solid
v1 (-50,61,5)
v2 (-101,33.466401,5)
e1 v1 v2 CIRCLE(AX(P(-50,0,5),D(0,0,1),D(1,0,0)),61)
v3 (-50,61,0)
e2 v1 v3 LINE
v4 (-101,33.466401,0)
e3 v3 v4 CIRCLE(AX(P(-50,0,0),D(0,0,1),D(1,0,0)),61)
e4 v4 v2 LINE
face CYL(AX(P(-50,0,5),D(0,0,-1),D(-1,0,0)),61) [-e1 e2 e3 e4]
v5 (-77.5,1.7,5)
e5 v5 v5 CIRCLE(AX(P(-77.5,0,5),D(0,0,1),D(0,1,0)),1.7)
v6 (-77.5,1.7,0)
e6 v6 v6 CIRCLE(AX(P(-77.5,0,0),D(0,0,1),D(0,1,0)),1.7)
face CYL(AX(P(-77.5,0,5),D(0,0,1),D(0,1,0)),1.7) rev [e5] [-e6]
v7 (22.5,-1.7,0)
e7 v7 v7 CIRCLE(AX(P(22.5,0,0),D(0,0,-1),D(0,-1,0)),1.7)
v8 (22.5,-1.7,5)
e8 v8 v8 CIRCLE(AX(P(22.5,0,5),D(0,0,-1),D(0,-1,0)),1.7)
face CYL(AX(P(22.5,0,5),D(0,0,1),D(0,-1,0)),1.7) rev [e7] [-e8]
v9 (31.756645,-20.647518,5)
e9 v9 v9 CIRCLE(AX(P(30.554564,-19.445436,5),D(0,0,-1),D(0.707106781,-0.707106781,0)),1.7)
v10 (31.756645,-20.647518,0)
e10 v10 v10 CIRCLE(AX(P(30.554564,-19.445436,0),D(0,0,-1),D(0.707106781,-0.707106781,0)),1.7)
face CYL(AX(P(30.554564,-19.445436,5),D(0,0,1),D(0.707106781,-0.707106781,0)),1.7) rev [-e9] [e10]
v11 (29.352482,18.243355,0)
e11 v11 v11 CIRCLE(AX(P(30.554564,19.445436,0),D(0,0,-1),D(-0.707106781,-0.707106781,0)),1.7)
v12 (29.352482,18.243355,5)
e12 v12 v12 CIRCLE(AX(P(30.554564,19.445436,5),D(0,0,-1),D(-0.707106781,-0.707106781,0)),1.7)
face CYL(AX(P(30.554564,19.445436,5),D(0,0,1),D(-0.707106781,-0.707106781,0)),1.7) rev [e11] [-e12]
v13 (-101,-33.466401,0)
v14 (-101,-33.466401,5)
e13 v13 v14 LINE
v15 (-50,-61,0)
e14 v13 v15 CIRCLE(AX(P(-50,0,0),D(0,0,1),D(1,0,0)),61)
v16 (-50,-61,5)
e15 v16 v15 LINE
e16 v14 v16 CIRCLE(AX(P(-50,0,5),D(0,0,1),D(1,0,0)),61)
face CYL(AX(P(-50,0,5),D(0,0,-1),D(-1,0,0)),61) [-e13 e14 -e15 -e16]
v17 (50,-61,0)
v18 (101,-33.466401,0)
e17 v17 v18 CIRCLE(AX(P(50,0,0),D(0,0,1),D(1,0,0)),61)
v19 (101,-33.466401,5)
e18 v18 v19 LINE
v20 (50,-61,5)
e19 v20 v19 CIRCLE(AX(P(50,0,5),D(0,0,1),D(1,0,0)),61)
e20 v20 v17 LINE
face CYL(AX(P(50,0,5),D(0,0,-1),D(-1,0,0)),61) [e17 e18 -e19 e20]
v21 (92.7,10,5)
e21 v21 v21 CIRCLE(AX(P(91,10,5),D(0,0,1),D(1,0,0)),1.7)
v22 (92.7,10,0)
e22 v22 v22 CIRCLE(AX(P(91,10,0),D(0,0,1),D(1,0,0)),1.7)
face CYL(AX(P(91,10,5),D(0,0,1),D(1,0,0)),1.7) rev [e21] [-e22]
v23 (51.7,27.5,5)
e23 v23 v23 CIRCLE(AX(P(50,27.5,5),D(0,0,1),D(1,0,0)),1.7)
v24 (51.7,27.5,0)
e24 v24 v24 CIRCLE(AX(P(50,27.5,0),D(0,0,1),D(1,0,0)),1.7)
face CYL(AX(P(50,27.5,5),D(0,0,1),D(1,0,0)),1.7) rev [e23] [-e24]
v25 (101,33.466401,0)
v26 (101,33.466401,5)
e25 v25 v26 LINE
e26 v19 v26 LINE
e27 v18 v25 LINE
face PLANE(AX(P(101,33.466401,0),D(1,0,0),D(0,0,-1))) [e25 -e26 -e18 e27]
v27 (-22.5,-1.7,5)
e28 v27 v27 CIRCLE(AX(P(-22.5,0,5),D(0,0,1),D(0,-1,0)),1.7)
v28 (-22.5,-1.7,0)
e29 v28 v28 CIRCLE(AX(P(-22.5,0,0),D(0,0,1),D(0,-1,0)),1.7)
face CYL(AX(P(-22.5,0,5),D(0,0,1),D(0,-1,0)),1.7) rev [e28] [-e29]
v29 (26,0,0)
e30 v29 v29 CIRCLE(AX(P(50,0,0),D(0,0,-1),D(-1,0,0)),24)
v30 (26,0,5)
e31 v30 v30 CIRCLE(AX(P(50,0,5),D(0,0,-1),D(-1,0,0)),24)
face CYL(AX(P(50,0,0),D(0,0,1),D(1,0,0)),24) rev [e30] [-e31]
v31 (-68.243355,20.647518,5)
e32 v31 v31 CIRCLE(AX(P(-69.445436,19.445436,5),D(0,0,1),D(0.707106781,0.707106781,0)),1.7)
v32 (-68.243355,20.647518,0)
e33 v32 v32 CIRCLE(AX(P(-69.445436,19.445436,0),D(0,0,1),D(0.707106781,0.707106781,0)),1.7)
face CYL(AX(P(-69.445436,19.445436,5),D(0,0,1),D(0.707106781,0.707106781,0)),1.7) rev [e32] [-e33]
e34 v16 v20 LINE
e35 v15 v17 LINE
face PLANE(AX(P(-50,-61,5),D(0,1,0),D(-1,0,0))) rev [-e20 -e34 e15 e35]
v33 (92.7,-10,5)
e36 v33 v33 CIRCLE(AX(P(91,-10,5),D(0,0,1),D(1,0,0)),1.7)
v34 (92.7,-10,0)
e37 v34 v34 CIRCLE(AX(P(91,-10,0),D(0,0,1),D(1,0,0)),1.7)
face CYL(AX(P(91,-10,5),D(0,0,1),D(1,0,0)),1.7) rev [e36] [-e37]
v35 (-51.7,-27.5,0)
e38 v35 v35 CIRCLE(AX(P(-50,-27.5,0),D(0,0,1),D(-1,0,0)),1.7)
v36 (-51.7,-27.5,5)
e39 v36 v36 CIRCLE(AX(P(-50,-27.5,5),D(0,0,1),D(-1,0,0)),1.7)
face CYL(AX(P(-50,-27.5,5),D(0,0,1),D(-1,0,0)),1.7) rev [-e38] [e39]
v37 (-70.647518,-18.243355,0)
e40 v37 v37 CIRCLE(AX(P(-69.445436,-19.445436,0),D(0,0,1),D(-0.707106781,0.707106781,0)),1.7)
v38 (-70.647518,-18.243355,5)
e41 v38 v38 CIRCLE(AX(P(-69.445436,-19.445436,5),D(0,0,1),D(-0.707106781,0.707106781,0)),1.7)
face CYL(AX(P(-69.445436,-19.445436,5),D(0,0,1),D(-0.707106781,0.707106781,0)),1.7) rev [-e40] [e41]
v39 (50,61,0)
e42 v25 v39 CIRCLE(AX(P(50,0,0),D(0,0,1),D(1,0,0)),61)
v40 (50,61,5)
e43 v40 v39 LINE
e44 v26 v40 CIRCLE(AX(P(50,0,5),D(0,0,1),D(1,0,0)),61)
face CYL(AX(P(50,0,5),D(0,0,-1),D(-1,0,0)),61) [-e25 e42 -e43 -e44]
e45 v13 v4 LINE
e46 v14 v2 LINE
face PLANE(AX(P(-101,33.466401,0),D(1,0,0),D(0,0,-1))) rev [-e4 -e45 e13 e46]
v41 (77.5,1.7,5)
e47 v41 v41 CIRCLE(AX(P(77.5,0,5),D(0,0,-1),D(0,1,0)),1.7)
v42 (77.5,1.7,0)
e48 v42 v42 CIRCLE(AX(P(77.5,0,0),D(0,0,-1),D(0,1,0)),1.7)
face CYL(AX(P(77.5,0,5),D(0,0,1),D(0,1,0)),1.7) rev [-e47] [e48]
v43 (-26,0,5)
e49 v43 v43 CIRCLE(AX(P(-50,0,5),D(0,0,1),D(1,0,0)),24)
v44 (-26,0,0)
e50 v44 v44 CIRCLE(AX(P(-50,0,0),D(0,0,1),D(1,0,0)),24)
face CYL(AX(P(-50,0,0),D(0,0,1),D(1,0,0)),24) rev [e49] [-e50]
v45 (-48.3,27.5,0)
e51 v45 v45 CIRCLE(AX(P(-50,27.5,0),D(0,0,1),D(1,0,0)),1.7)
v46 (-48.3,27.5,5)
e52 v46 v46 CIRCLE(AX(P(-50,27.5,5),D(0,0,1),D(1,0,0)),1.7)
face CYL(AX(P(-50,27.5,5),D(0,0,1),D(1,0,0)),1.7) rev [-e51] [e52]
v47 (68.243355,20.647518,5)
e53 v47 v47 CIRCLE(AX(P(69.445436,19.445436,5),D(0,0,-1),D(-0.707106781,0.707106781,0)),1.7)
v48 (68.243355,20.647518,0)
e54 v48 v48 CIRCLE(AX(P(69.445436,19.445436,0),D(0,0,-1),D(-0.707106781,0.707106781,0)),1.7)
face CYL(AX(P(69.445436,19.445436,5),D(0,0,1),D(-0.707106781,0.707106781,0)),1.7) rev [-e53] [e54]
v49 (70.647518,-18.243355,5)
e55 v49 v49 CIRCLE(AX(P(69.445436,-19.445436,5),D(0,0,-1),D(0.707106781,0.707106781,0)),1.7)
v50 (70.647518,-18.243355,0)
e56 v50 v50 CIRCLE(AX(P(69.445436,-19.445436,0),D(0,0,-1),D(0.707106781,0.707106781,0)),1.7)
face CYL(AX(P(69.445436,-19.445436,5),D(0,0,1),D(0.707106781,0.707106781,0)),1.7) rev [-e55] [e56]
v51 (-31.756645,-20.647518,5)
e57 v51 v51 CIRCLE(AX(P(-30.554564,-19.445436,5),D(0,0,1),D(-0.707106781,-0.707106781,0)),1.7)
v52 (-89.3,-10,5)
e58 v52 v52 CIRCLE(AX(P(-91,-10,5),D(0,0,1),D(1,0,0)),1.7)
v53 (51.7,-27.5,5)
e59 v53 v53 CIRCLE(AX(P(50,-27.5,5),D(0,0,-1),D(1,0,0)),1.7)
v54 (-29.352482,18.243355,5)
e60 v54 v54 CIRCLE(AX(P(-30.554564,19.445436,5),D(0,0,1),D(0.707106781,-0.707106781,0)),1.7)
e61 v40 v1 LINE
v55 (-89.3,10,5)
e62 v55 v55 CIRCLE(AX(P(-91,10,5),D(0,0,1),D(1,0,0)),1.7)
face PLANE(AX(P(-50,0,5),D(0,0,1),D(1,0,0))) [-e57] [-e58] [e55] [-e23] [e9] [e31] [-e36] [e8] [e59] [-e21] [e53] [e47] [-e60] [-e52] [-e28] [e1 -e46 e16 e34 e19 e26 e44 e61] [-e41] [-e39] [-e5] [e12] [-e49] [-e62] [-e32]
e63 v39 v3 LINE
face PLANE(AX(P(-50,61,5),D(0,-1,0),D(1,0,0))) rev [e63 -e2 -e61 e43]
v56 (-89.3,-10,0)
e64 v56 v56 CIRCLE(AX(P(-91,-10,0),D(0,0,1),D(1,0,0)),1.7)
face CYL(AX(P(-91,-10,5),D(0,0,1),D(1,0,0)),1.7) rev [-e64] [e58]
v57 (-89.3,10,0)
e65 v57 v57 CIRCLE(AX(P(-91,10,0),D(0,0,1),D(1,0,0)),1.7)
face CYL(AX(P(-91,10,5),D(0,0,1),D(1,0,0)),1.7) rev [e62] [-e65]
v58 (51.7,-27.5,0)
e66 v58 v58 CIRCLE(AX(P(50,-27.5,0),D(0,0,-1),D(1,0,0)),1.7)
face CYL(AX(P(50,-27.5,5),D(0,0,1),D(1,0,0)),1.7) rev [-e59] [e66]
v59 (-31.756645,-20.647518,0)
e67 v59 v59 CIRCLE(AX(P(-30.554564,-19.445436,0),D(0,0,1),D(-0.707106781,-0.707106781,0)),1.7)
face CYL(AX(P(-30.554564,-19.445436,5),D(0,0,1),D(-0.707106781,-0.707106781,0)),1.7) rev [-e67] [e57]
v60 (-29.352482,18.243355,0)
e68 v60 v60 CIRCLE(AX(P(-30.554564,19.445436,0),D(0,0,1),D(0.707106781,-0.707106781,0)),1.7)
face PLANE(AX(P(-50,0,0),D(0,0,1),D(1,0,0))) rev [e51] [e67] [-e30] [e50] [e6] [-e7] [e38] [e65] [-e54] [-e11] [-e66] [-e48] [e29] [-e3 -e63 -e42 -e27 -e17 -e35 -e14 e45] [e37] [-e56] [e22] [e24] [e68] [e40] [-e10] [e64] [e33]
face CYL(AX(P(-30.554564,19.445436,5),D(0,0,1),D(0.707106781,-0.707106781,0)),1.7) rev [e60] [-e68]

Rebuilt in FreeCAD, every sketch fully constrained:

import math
import FreeCAD as App
import Part
import Sketcher
from FreeCAD import Vector

doc = App.newDocument("Part")
params = doc.addObject("Spreadsheet::Sheet", "Params")
for row, (alias, value) in enumerate([
    ("sketch1_radius", "61 mm"),
    ("sketch1_width", "100 mm"),
    ("pad1_length", "5 mm"),
    ("sketch2_diameter", "48 mm"),
    ("sketch3_diameter", "3.4 mm"),
    ("hole_diameter", "3.4 mm"),
    ("sketch4_diameter", "3.4 mm"),
    ("hole2_diameter", "3.4 mm"),
    ("sketch5_diameter", "3.4 mm"),
    ("hole3_diameter", "3.4 mm"),
    ("sketch6_diameter", "3.4 mm"),
    ("hole4_diameter", "3.4 mm"),
    ("sketch7_diameter", "3.4 mm"),
    ("hole5_diameter", "3.4 mm"),
    ("sketch8_diameter", "3.4 mm"),
    ("hole6_diameter", "3.4 mm"),
    ("sketch9_diameter", "3.4 mm"),
    ("hole7_diameter", "3.4 mm"),
    ("sketch10_diameter", "3.4 mm"),
    ("hole8_diameter", "3.4 mm"),
    ("sketch11_radius", "61 mm"),
    ("sketch12_diameter", "3.4 mm"),
    ("hole9_diameter", "3.4 mm"),
], start=1):
    params.set(f"A{row}", alias)
    params.set(f"B{row}", "=" + value)
    params.setAlias(f"B{row}", alias)

body = doc.addObject("PartDesign::Body", "Body")

# Sketch on XY plane
sketch1 = doc.addObject("Sketcher::SketchObject", "Sketch")
body.addObject(sketch1)
sketch1.AttachmentSupport = (doc.XY_Plane, [""])
sketch1.MapMode = "FlatFace"
sketch1.addGeometry([
    Part.LineSegment(Vector(50, 61, 0), Vector(-50, 61, 0)),
    Part.ArcOfCircle(Part.Circle(Vector(-50, 0, 0), Vector(0, 0, 1), 61), math.radians(90), math.radians(270)),
    Part.LineSegment(Vector(-50, -61, 0), Vector(50, -61, 0)),
    Part.ArcOfCircle(Part.Circle(Vector(50, 0, 0), Vector(0, 0, 1), 61), math.radians(-90), math.radians(90)),
], False)
sketch1.addConstraint([
    Sketcher.Constraint("Tangent", 0, 2, 1, 1),
    Sketcher.Constraint("Tangent", 1, 2, 2, 1),
    Sketcher.Constraint("Tangent", 2, 2, 3, 1),
    Sketcher.Constraint("Tangent", 3, 2, 0, 1),
    Sketcher.Constraint("Horizontal", 0),
    Sketcher.Constraint("Horizontal", 2),
    Sketcher.Constraint("Symmetric", 1, 3, 3, 3, -1, 1),
    Sketcher.Constraint("Radius", 1, 61.0),
    Sketcher.Constraint("DistanceX", 0, 2, 0, 1, 100.0),
])
sketch1.setExpression("Constraints[7]", "Params.sketch1_radius")
sketch1.setExpression("Constraints[8]", "Params.sketch1_width")
pad1 = doc.addObject("PartDesign::Pad", "Pad")
body.addObject(pad1)
pad1.Profile = sketch1
pad1.setExpression("Length", "Params.pad1_length")

# Sketch on XY plane
sketch2 = doc.addObject("Sketcher::SketchObject", "Sketch001")
body.addObject(sketch2)
sketch2.AttachmentSupport = (doc.XY_Plane, [""])
sketch2.MapMode = "FlatFace"
sketch2.AttachmentOffset = App.Placement(Vector(0, 0, 5), App.Rotation())
sketch2.addGeometry(Part.Circle(Vector(-50, 0, 0), Vector(0, 0, 1), 24), False)
sketch2.addConstraint([
    Sketcher.Constraint("PointOnObject", 0, 3, -1),
    Sketcher.Constraint("Diameter", 0, 48.0),
    Sketcher.Constraint("DistanceX", 0, 3, -1, 1, 50.0),
])
sketch2.setExpression("Constraints[1]", "Params.sketch2_diameter")
pocket1 = doc.addObject("PartDesign::Pocket", "Pocket")
body.addObject(pocket1)
pocket1.Profile = sketch2
pocket1.Type = "ThroughAll"

# Sketch on XY plane
sketch3 = doc.addObject("Sketcher::SketchObject", "Sketch002")
body.addObject(sketch3)
sketch3.AttachmentSupport = (doc.XY_Plane, [""])
sketch3.MapMode = "FlatFace"
sketch3.AttachmentOffset = App.Placement(Vector(0, 0, 5), App.Rotation())
sketch3.addGeometry(Part.Circle(Vector(-50, 27.5, 0), Vector(0, 0, 1), 1.7), False)
sketch3.addConstraint([
    Sketcher.Constraint("Diameter", 0, 3.4),
    Sketcher.Constraint("DistanceX", 0, 3, -1, 1, 50.0),
    Sketcher.Constraint("DistanceY", -1, 1, 0, 3, 27.5),
])
sketch3.setExpression("Constraints[0]", "Params.sketch3_diameter")
doc.recompute()
hole = doc.addObject("PartDesign::Hole", "Hole")
body.addObject(hole)
hole.Profile = sketch3
hole.ThreadType = "None"
hole.setExpression("Diameter", "Params.hole_diameter")
hole.DepthType = "ThroughAll"
doc.recompute()

datumline = doc.addObject("PartDesign::Line", "DatumLine")
body.addObject(datumline)
datumline.Placement = App.Placement(Vector(-50, 0, 0), App.Rotation(Vector(0, 0, 1), Vector(0, 0, 1)))
polarpattern = doc.addObject("PartDesign::PolarPattern", "PolarPattern")
body.addObject(polarpattern)
polarpattern.Originals = [hole]
polarpattern.Axis = (datumline, [""])
polarpattern.Angle = 360
polarpattern.Occurrences = 8
body.Tip = polarpattern
doc.recompute()

mirrored = doc.addObject("PartDesign::Mirrored", "Mirrored")
body.addObject(mirrored)
mirrored.Originals = [pocket1, hole]
mirrored.MirrorPlane = (doc.YZ_Plane, [""])
body.Tip = mirrored

# Sketch on XY plane
sketch4 = doc.addObject("Sketcher::SketchObject", "Sketch003")
body.addObject(sketch4)
sketch4.AttachmentSupport = (doc.XY_Plane, [""])
sketch4.MapMode = "FlatFace"
sketch4.AttachmentOffset = App.Placement(Vector(0, 0, 5), App.Rotation())
sketch4.addGeometry(Part.Circle(Vector(69.4, 19.4, 0), Vector(0, 0, 1), 1.7), False)
sketch4.addConstraint([
    Sketcher.Constraint("Diameter", 0, 3.4),
    Sketcher.Constraint("DistanceX", -1, 1, 0, 3, 69.445436),
    Sketcher.Constraint("DistanceY", -1, 1, 0, 3, 19.445436),
])
sketch4.setExpression("Constraints[0]", "Params.sketch4_diameter")
doc.recompute()
hole2 = doc.addObject("PartDesign::Hole", "Hole001")
body.addObject(hole2)
hole2.Profile = sketch4
hole2.ThreadType = "None"
hole2.setExpression("Diameter", "Params.hole2_diameter")
hole2.DepthType = "ThroughAll"

# Sketch on XY plane
sketch5 = doc.addObject("Sketcher::SketchObject", "Sketch004")
body.addObject(sketch5)
sketch5.AttachmentSupport = (doc.XY_Plane, [""])
sketch5.MapMode = "FlatFace"
sketch5.AttachmentOffset = App.Placement(Vector(0, 0, 5), App.Rotation())
sketch5.addGeometry(Part.Circle(Vector(77.5, 0, 0), Vector(0, 0, 1), 1.7), False)
sketch5.addConstraint([
    Sketcher.Constraint("PointOnObject", 0, 3, -1),
    Sketcher.Constraint("Diameter", 0, 3.4),
    Sketcher.Constraint("DistanceX", -1, 1, 0, 3, 77.5),
])
sketch5.setExpression("Constraints[1]", "Params.sketch5_diameter")
doc.recompute()
hole3 = doc.addObject("PartDesign::Hole", "Hole002")
body.addObject(hole3)
hole3.Profile = sketch5
hole3.ThreadType = "None"
hole3.setExpression("Diameter", "Params.hole3_diameter")
hole3.DepthType = "ThroughAll"

# Sketch on XY plane
sketch6 = doc.addObject("Sketcher::SketchObject", "Sketch005")
body.addObject(sketch6)
sketch6.AttachmentSupport = (doc.XY_Plane, [""])
sketch6.MapMode = "FlatFace"
sketch6.AttachmentOffset = App.Placement(Vector(0, 0, 5), App.Rotation())
sketch6.addGeometry(Part.Circle(Vector(69.4, -19.4, 0), Vector(0, 0, 1), 1.7), False)
sketch6.addConstraint([
    Sketcher.Constraint("Diameter", 0, 3.4),
    Sketcher.Constraint("DistanceX", -1, 1, 0, 3, 69.445436),
    Sketcher.Constraint("DistanceY", 0, 3, -1, 1, 19.445436),
])
sketch6.setExpression("Constraints[0]", "Params.sketch6_diameter")
doc.recompute()
hole4 = doc.addObject("PartDesign::Hole", "Hole003")
body.addObject(hole4)
hole4.Profile = sketch6
hole4.ThreadType = "None"
hole4.setExpression("Diameter", "Params.hole4_diameter")
hole4.DepthType = "ThroughAll"

# Sketch on XY plane
sketch7 = doc.addObject("Sketcher::SketchObject", "Sketch006")
body.addObject(sketch7)
sketch7.AttachmentSupport = (doc.XY_Plane, [""])
sketch7.MapMode = "FlatFace"
sketch7.AttachmentOffset = App.Placement(Vector(0, 0, 5), App.Rotation())
sketch7.addGeometry(Part.Circle(Vector(50, -27.5, 0), Vector(0, 0, 1), 1.7), False)
sketch7.addConstraint([
    Sketcher.Constraint("Diameter", 0, 3.4),
    Sketcher.Constraint("DistanceX", -1, 1, 0, 3, 50.0),
    Sketcher.Constraint("DistanceY", 0, 3, -1, 1, 27.5),
])
sketch7.setExpression("Constraints[0]", "Params.sketch7_diameter")
doc.recompute()
hole5 = doc.addObject("PartDesign::Hole", "Hole004")
body.addObject(hole5)
hole5.Profile = sketch7
hole5.ThreadType = "None"
hole5.setExpression("Diameter", "Params.hole5_diameter")
hole5.DepthType = "ThroughAll"

# Sketch on XY plane
sketch8 = doc.addObject("Sketcher::SketchObject", "Sketch007")
body.addObject(sketch8)
sketch8.AttachmentSupport = (doc.XY_Plane, [""])
sketch8.MapMode = "FlatFace"
sketch8.AttachmentOffset = App.Placement(Vector(0, 0, 5), App.Rotation())
sketch8.addGeometry(Part.Circle(Vector(30.6, -19.4, 0), Vector(0, 0, 1), 1.7), False)
sketch8.addConstraint([
    Sketcher.Constraint("Diameter", 0, 3.4),
    Sketcher.Constraint("DistanceX", -1, 1, 0, 3, 30.554564),
    Sketcher.Constraint("DistanceY", 0, 3, -1, 1, 19.445436),
])
sketch8.setExpression("Constraints[0]", "Params.sketch8_diameter")
doc.recompute()
hole6 = doc.addObject("PartDesign::Hole", "Hole005")
body.addObject(hole6)
hole6.Profile = sketch8
hole6.ThreadType = "None"
hole6.setExpression("Diameter", "Params.hole6_diameter")
hole6.DepthType = "ThroughAll"

# Sketch on XY plane
sketch9 = doc.addObject("Sketcher::SketchObject", "Sketch008")
body.addObject(sketch9)
sketch9.AttachmentSupport = (doc.XY_Plane, [""])
sketch9.MapMode = "FlatFace"
sketch9.AttachmentOffset = App.Placement(Vector(0, 0, 5), App.Rotation())
sketch9.addGeometry(Part.Circle(Vector(22.5, 0, 0), Vector(0, 0, 1), 1.7), False)
sketch9.addConstraint([
    Sketcher.Constraint("PointOnObject", 0, 3, -1),
    Sketcher.Constraint("Diameter", 0, 3.4),
    Sketcher.Constraint("DistanceX", -1, 1, 0, 3, 22.5),
])
sketch9.setExpression("Constraints[1]", "Params.sketch9_diameter")
doc.recompute()
hole7 = doc.addObject("PartDesign::Hole", "Hole006")
body.addObject(hole7)
hole7.Profile = sketch9
hole7.ThreadType = "None"
hole7.setExpression("Diameter", "Params.hole7_diameter")
hole7.DepthType = "ThroughAll"

# Sketch on XY plane
sketch10 = doc.addObject("Sketcher::SketchObject", "Sketch009")
body.addObject(sketch10)
sketch10.AttachmentSupport = (doc.XY_Plane, [""])
sketch10.MapMode = "FlatFace"
sketch10.AttachmentOffset = App.Placement(Vector(0, 0, 5), App.Rotation())
sketch10.addGeometry(Part.Circle(Vector(30.6, 19.4, 0), Vector(0, 0, 1), 1.7), False)
sketch10.addConstraint([
    Sketcher.Constraint("Diameter", 0, 3.4),
    Sketcher.Constraint("DistanceX", -1, 1, 0, 3, 30.554564),
    Sketcher.Constraint("DistanceY", -1, 1, 0, 3, 19.445436),
])
sketch10.setExpression("Constraints[0]", "Params.sketch10_diameter")
doc.recompute()
hole8 = doc.addObject("PartDesign::Hole", "Hole007")
body.addObject(hole8)
hole8.Profile = sketch10
hole8.ThreadType = "None"
hole8.setExpression("Diameter", "Params.hole8_diameter")
hole8.DepthType = "ThroughAll"

# Sketch on XY plane
sketch11 = doc.addObject("Sketcher::SketchObject", "Sketch010")
body.addObject(sketch11)
sketch11.AttachmentSupport = (doc.XY_Plane, [""])
sketch11.MapMode = "FlatFace"
sketch11.AttachmentOffset = App.Placement(Vector(0, 0, 5), App.Rotation())
sketch11.addGeometry([
    Part.LineSegment(Vector(-101, -33, 0), Vector(-101, 33, 0)),
    Part.ArcOfCircle(Part.Circle(Vector(-50, 0, 0), Vector(0, 0, 1), 61), math.radians(147), math.radians(213)),
], False)
sketch11.addConstraint([
    Sketcher.Constraint("Coincident", 0, 1, 1, 2),
    Sketcher.Constraint("Coincident", 1, 1, 0, 2),
    Sketcher.Constraint("Vertical", 0),
    Sketcher.Constraint("PointOnObject", 1, 3, -1),
    Sketcher.Constraint("Radius", 1, 61.0),
    Sketcher.Constraint("DistanceX", 1, 3, -1, 1, 50.0),
    Sketcher.Constraint("DistanceX", 0, 1, -1, 1, 101.0),
])
sketch11.setExpression("Constraints[4]", "Params.sketch11_radius")
pocket2 = doc.addObject("PartDesign::Pocket", "Pocket001")
body.addObject(pocket2)
pocket2.Profile = sketch11
pocket2.Type = "ThroughAll"

# Sketch on XY plane
sketch12 = doc.addObject("Sketcher::SketchObject", "Sketch011")
body.addObject(sketch12)
sketch12.AttachmentSupport = (doc.XY_Plane, [""])
sketch12.MapMode = "FlatFace"
sketch12.AttachmentOffset = App.Placement(Vector(0, 0, 5), App.Rotation())
sketch12.addGeometry([
    Part.Circle(Vector(-91, 10, 0), Vector(0, 0, 1), 1.7),
    Part.Circle(Vector(-91, -10, 0), Vector(0, 0, 1), 1.7),
], False)
sketch12.addConstraint([
    Sketcher.Constraint("Equal", 0, 1),
    Sketcher.Constraint("Symmetric", 0, 3, 1, 3, -1),
    Sketcher.Constraint("Diameter", 0, 3.4),
    Sketcher.Constraint("DistanceX", 0, 3, -1, 1, 91.0),
    Sketcher.Constraint("DistanceY", -1, 1, 0, 3, 10.0),
])
sketch12.setExpression("Constraints[2]", "Params.sketch12_diameter")
doc.recompute()
hole9 = doc.addObject("PartDesign::Hole", "Hole008")
body.addObject(hole9)
hole9.Profile = sketch12
hole9.ThreadType = "None"
hole9.setExpression("Diameter", "Params.hole9_diameter")
hole9.DepthType = "ThroughAll"
doc.recompute()

mirrored2 = doc.addObject("PartDesign::Mirrored", "Mirrored001")
body.addObject(mirrored2)
mirrored2.Originals = [pocket2, hole9]
mirrored2.MirrorPlane = (doc.YZ_Plane, [""])
body.Tip = mirrored2

doc.recompute()
